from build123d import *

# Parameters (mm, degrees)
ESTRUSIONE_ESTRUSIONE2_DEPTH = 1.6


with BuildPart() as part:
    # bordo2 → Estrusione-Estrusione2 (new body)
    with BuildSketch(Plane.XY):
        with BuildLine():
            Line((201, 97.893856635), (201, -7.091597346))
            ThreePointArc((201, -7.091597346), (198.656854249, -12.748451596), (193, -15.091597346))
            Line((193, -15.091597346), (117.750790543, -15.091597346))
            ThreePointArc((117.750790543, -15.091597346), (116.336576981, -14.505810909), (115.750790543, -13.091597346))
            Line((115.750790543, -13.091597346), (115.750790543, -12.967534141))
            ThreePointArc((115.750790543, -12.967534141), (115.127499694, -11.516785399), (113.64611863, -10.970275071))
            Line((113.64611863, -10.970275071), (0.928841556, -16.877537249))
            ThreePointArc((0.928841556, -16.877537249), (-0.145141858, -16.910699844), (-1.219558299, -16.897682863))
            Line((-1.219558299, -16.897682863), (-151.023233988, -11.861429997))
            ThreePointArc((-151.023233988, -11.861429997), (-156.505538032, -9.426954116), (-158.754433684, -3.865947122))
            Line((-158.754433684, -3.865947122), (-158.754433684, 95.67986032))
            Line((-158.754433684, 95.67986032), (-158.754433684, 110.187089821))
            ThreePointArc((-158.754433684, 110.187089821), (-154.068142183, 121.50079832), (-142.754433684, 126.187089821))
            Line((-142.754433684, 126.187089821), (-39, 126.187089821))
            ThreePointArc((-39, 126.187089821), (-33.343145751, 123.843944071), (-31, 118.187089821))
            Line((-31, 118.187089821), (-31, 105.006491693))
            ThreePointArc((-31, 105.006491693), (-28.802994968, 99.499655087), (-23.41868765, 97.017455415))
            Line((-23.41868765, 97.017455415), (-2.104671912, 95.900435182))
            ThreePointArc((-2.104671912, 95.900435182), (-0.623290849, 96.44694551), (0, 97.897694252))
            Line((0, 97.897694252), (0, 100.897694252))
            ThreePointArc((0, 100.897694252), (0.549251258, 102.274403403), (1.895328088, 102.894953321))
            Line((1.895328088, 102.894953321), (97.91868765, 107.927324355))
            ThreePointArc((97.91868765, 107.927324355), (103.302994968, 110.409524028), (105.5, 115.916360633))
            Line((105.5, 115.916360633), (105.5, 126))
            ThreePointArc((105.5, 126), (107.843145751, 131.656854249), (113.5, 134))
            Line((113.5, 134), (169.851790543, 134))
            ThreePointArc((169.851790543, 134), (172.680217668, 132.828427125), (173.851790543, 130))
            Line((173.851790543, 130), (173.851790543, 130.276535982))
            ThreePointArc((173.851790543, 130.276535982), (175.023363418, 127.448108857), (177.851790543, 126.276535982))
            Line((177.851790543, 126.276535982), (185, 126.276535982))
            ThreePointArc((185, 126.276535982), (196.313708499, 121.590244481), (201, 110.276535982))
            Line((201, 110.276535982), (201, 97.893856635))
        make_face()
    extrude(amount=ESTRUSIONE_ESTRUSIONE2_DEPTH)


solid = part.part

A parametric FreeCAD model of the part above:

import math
import FreeCAD as App
import Part
import Sketcher
Q = App.Units.Quantity

doc = App.newDocument("Part")
params = doc.addObject("Spreadsheet::Sheet", "Params")
for row, (alias, value) in enumerate([
    ("sketch1_radius", "8 mm"),
    ("sketch1_radius2", "16 mm"),
    ("sketch1_radius3", "4 mm"),
    ("sketch1_radius4", "2 mm"),
    ("sketch1_radius5", "24.999999 mm"),
    ("pad1_length", "1.6 mm"),
], start=1):
    params.set(f"A{row}", alias)
    params.set(f"B{row}", "=" + value)
    params.setAlias(f"B{row}", alias)

body = doc.addObject("PartDesign::Body", "Body")

sketch1 = body.newObject("Sketcher::SketchObject", "Sketch")
sketch1.AttachmentSupport = (doc.getObject("XY_Plane"), [""])
sketch1.MapMode = "FlatFace"
sketch1.addGeometry(Part.ArcOfCircle(Part.Circle(App.Vector(193, -7.091597, 0), App.Vector(0, 0, 1), 8), math.radians(-90), math.radians(0)), False)
sketch1.addGeometry(Part.LineSegment(App.Vector(201, -7.091597, 0), App.Vector(201, 110.276536, 0)), False)
sketch1.addGeometry(Part.ArcOfCircle(Part.Circle(App.Vector(185, 110.276536, 0), App.Vector(0, 0, 1), 16), math.radians(0), math.radians(90)), False)
sketch1.addGeometry(Part.LineSegment(App.Vector(185, 126.276536, 0), App.Vector(177.851791, 126.276536, 0)), False)
sketch1.addGeometry(Part.ArcOfCircle(Part.Circle(App.Vector(177.851791, 130.276536, 0), App.Vector(0, 0, 1), 4), math.radians(180), math.radians(270)), False)
sketch1.addGeometry(Part.LineSegment(App.Vector(173.851791, 130.276536, 0), App.Vector(173.851791, 130, 0)), False)
sketch1.addGeometry(Part.ArcOfCircle(Part.Circle(App.Vector(169.851791, 130, 0), App.Vector(0, 0, 1), 4), math.radians(0), math.radians(90)), False)
sketch1.addGeometry(Part.LineSegment(App.Vector(169.851791, 134, 0), App.Vector(113.5, 134, 0)), False)
sketch1.addGeometry(Part.ArcOfCircle(Part.Circle(App.Vector(113.5, 126, 0), App.Vector(0, 0, 1), 8), math.radians(90), math.radians(180)), False)
sketch1.addGeometry(Part.LineSegment(App.Vector(105.5, 126, 0), App.Vector(105.5, 115.916361, 0)), False)
sketch1.addGeometry(Part.ArcOfCircle(Part.Circle(App.Vector(97.5, 115.916361, 0), App.Vector(0, 0, 1), 8), math.radians(-87), math.radians(0)), False)
sketch1.addGeometry(Part.LineSegment(App.Vector(97.918688, 107.927324, 0), App.Vector(1.895328, 102.894953, 0)), False)
sketch1.addGeometry(Part.ArcOfCircle(Part.Circle(App.Vector(2, 100.897694, 0), App.Vector(0, 0, 1), 2), math.radians(93), math.radians(180)), False)
sketch1.addGeometry(Part.LineSegment(App.Vector(0, 100.897694, 0), App.Vector(0, 97.897694, 0)), False)
sketch1.addGeometry(Part.ArcOfCircle(Part.Circle(App.Vector(-2, 97.897694, 0), App.Vector(0, 0, 1), 2), math.radians(-93), math.radians(0)), False)
sketch1.addGeometry(Part.LineSegment(App.Vector(-2.104672, 95.900435, 0), App.Vector(-23.418688, 97.017455, 0)), False)
sketch1.addGeometry(Part.ArcOfCircle(Part.Circle(App.Vector(-23, 105.006492, 0), App.Vector(0, 0, 1), 8), math.radians(180), math.radians(267)), False)
sketch1.addGeometry(Part.LineSegment(App.Vector(-31, 105.006492, 0), App.Vector(-31, 118.18709, 0)), False)
sketch1.addGeometry(Part.ArcOfCircle(Part.Circle(App.Vector(-39, 118.18709, 0), App.Vector(0, 0, 1), 8), math.radians(0), math.radians(90)), False)
sketch1.addGeometry(Part.LineSegment(App.Vector(-39, 126.18709, 0), App.Vector(-142.754434, 126.18709, 0)), False)
sketch1.addGeometry(Part.ArcOfCircle(Part.Circle(App.Vector(-142.754434, 110.18709, 0), App.Vector(0, 0, 1), 16), math.radians(90), math.radians(180)), False)
sketch1.addGeometry(Part.LineSegment(App.Vector(-158.754434, 110.18709, 0), App.Vector(-158.754434, -3.865947, 0)), False)
sketch1.addGeometry(Part.ArcOfCircle(Part.Circle(App.Vector(-150.754434, -3.865947, 0), App.Vector(0, 0, 1), 8), math.radians(180), math.radians(268.074497)), False)
sketch1.addGeometry(Part.LineSegment(App.Vector(-151.023234, -11.86143, 0), App.Vector(-1.219558, -16.897683, 0)), False)
sketch1.addGeometry(Part.ArcOfCircle(Part.Circle(App.Vector(-0.379557, 8.088201, 0), App.Vector(0, 0, 1), 24.999999), math.radians(-91.925503), math.radians(-87)), False)
sketch1.addGeometry(Part.LineSegment(App.Vector(0.928842, -16.877537, 0), App.Vector(113.646119, -10.970275, 0)), False)
sketch1.addGeometry(Part.ArcOfCircle(Part.Circle(App.Vector(113.750791, -12.967534, 0), App.Vector(0, 0, 1), 2), math.radians(0), math.radians(93)), False)
sketch1.addGeometry(Part.LineSegment(App.Vector(115.750791, -12.967534, 0), App.Vector(115.750791, -13.091597, 0)), False)
sketch1.addGeometry(Part.ArcOfCircle(Part.Circle(App.Vector(117.750791, -13.091597, 0), App.Vector(0, 0, 1), 2), math.radians(180), math.radians(270)), False)
sketch1.addGeometry(Part.LineSegment(App.Vector(117.750791, -15.091597, 0), App.Vector(193, -15.091597, 0)), False)
sketch1.addConstraint(Sketcher.Constraint("Tangent", 0, 2, 1, 1))
sketch1.addConstraint(Sketcher.Constraint("Tangent", 1, 2, 2, 1))
sketch1.addConstraint(Sketcher.Constraint("Tangent", 2, 2, 3, 1))
sketch1.addConstraint(Sketcher.Constraint("Tangent", 3, 2, 4, 2))
sketch1.addConstraint(Sketcher.Constraint("Tangent", 4, 1, 5, 1))
sketch1.addConstraint(Sketcher.Constraint("Tangent", 5, 2, 6, 1))
sketch1.addConstraint(Sketcher.Constraint("Tangent", 6, 2, 7, 1))
sketch1.addConstraint(Sketcher.Constraint("Tangent", 7, 2, 8, 1))
sketch1.addConstraint(Sketcher.Constraint("Tangent", 8, 2, 9, 1))
sketch1.addConstraint(Sketcher.Constraint("Tangent", 9, 2, 10, 2))
sketch1.addConstraint(Sketcher.Constraint("Tangent", 10, 1, 11, 1))
sketch1.addConstraint(Sketcher.Constraint("Tangent", 11, 2, 12, 1))
sketch1.addConstraint(Sketcher.Constraint("Tangent", 12, 2, 13, 1))
sketch1.addConstraint(Sketcher.Constraint("Tangent", 13, 2, 14, 2))
sketch1.addConstraint(Sketcher.Constraint("Tangent", 14, 1, 15, 1))
sketch1.addConstraint(Sketcher.Constraint("Tangent", 15, 2, 16, 2))
sketch1.addConstraint(Sketcher.Constraint("Tangent", 16, 1, 17, 1))
sketch1.addConstraint(Sketcher.Constraint("Tangent", 17, 2, 18, 1))
sketch1.addConstraint(Sketcher.Constraint("Tangent", 18, 2, 19, 1))
sketch1.addConstraint(Sketcher.Constraint("Tangent", 19, 2, 20, 1))
sketch1.addConstraint(Sketcher.Constraint("Tangent", 20, 2, 21, 1))
sketch1.addConstraint(Sketcher.Constraint("Tangent", 21, 2, 22, 1))
sketch1.addConstraint(Sketcher.Constraint("Tangent", 22, 2, 23, 1))
sketch1.addConstraint(Sketcher.Constraint("Tangent", 23, 2, 24, 1))
sketch1.addConstraint(Sketcher.Constraint("Tangent", 24, 2, 25, 1))
sketch1.addConstraint(Sketcher.Constraint("Tangent", 25, 2, 26, 2))
sketch1.addConstraint(Sketcher.Constraint("Tangent", 26, 1, 27, 1))
sketch1.addConstraint(Sketcher.Constraint("Tangent", 27, 2, 28, 1))
sketch1.addConstraint(Sketcher.Constraint("Tangent", 28, 2, 29, 1))
sketch1.addConstraint(Sketcher.Constraint("Tangent", 29, 2, 0, 1))
sketch1.addConstraint(Sketcher.Constraint("Vertical", 1))
sketch1.addConstraint(Sketcher.Constraint("Horizontal", 3))
sketch1.addConstraint(Sketcher.Constraint("Vertical", 5))
sketch1.addConstraint(Sketcher.Constraint("Horizontal", 7))
sketch1.addConstraint(Sketcher.Constraint("Vertical", 9))
sketch1.addConstraint(Sketcher.Constraint("Vertical", 13))
sketch1.addConstraint(Sketcher.Constraint("Vertical", 17))
sketch1.addConstraint(Sketcher.Constraint("Horizontal", 19))
sketch1.addConstraint(Sketcher.Constraint("Vertical", 21))
sketch1.addConstraint(Sketcher.Constraint("Vertical", 27))
sketch1.addConstraint(Sketcher.Constraint("Horizontal", 29))
sketch1.addConstraint(Sketcher.Constraint("Equal", 4, 6))
sketch1.addConstraint(Sketcher.Constraint("Equal", 0, 8))
sketch1.addConstraint(Sketcher.Constraint("Equal", 8, 10))
sketch1.addConstraint(Sketcher.Constraint("Equal", 12, 14))
sketch1.addConstraint(Sketcher.Constraint("Equal", 10, 16))
sketch1.addConstraint(Sketcher.Constraint("Equal", 16, 18))
sketch1.addConstraint(Sketcher.Constraint("Equal", 2, 20))
sketch1.addConstraint(Sketcher.Constraint("Equal", 18, 22))
sketch1.addConstraint(Sketcher.Constraint("Equal", 14, 26))
sketch1.addConstraint(Sketcher.Constraint("Equal", 26, 28))
sketch1.addConstraint(Sketcher.Constraint("PointOnObject", 12, 2, -2))
sketch1.addConstraint(Sketcher.Constraint("Parallel", 11, 25))
sketch1.addConstraint(Sketcher.Constraint("Radius", 0, 8.0))
sketch1.addConstraint(Sketcher.Constraint("Radius", 2, 16.0))
sketch1.addConstraint(Sketcher.Constraint("Radius", 4, 4.0))
sketch1.addConstraint(Sketcher.Constraint("Radius", 12, 2.0))
sketch1.addConstraint(Sketcher.Constraint("Radius", 24, 24.999999))
sketch1.addConstraint(Sketcher.Constraint("DistanceY", 13, 2, 13, 1, 3.0))
sketch1.addConstraint(Sketcher.Constraint("Angle", 11, Q("-177 deg")))
sketch1.addConstraint(Sketcher.Constraint("Angle", 15, Q("177 deg")))
sketch1.addConstraint(Sketcher.Constraint("DistanceX", -1, 1, 0, 3, 193.0))
sketch1.addConstraint(Sketcher.Constraint("DistanceY", -1, 1, 6, 3, 130.0))
sketch1.addConstraint(Sketcher.Constraint("DistanceX", 16, 3, -1, 1, 23.0))
sketch1.addConstraint(Sketcher.Constraint("DistanceX", -1, 1, 8, 3, 113.5))
sketch1.addConstraint(Sketcher.Constraint("DistanceX", 23, 2, 24, 3, 0.840001))
sketch1.addConstraint(Sketcher.Constraint("DistanceY", 17, 1, 17, 2, 13.180598))
sketch1.addConstraint(Sketcher.Constraint("DistanceX", 3, 2, 3, 1, 7.148209))
sketch1.addConstraint(Sketcher.Constraint("DistanceX", 29, 1, 29, 2, 75.249209))
sketch1.addConstraint(Sketcher.Constraint("DistanceY", 9, 2, 9, 1, 10.083639))
sketch1.addConstraint(Sketcher.Constraint("DistanceY", -1, 1, 24, 3, 8.088201))
sketch1.addConstraint(Sketcher.Constraint("Distance", 23, 149.888309))
sketch1.addConstraint(Sketcher.Constraint("DistanceX", 19, 2, 19, 1, 103.754434))
sketch1.addConstraint(Sketcher.Constraint("DistanceY", 1, 1, 1, 2, 117.368133))
sketch1.addConstraint(Sketcher.Constraint("DistanceY", 5, 2, 5, 1, 0.276536))
sketch1.setExpression("Constraints[53]", "Params.sketch1_radius")
sketch1.setExpression("Constraints[54]", "Params.sketch1_radius2")
sketch1.setExpression("Constraints[55]", "Params.sketch1_radius3")
sketch1.setExpression("Constraints[56]", "Params.sketch1_radius4")
sketch1.setExpression("Constraints[57]", "Params.sketch1_radius5")
pad1 = body.newObject("PartDesign::Pad", "Pad")
pad1.Profile = sketch1
pad1.setExpression("Length", "Params.pad1_length")

doc.recompute()
